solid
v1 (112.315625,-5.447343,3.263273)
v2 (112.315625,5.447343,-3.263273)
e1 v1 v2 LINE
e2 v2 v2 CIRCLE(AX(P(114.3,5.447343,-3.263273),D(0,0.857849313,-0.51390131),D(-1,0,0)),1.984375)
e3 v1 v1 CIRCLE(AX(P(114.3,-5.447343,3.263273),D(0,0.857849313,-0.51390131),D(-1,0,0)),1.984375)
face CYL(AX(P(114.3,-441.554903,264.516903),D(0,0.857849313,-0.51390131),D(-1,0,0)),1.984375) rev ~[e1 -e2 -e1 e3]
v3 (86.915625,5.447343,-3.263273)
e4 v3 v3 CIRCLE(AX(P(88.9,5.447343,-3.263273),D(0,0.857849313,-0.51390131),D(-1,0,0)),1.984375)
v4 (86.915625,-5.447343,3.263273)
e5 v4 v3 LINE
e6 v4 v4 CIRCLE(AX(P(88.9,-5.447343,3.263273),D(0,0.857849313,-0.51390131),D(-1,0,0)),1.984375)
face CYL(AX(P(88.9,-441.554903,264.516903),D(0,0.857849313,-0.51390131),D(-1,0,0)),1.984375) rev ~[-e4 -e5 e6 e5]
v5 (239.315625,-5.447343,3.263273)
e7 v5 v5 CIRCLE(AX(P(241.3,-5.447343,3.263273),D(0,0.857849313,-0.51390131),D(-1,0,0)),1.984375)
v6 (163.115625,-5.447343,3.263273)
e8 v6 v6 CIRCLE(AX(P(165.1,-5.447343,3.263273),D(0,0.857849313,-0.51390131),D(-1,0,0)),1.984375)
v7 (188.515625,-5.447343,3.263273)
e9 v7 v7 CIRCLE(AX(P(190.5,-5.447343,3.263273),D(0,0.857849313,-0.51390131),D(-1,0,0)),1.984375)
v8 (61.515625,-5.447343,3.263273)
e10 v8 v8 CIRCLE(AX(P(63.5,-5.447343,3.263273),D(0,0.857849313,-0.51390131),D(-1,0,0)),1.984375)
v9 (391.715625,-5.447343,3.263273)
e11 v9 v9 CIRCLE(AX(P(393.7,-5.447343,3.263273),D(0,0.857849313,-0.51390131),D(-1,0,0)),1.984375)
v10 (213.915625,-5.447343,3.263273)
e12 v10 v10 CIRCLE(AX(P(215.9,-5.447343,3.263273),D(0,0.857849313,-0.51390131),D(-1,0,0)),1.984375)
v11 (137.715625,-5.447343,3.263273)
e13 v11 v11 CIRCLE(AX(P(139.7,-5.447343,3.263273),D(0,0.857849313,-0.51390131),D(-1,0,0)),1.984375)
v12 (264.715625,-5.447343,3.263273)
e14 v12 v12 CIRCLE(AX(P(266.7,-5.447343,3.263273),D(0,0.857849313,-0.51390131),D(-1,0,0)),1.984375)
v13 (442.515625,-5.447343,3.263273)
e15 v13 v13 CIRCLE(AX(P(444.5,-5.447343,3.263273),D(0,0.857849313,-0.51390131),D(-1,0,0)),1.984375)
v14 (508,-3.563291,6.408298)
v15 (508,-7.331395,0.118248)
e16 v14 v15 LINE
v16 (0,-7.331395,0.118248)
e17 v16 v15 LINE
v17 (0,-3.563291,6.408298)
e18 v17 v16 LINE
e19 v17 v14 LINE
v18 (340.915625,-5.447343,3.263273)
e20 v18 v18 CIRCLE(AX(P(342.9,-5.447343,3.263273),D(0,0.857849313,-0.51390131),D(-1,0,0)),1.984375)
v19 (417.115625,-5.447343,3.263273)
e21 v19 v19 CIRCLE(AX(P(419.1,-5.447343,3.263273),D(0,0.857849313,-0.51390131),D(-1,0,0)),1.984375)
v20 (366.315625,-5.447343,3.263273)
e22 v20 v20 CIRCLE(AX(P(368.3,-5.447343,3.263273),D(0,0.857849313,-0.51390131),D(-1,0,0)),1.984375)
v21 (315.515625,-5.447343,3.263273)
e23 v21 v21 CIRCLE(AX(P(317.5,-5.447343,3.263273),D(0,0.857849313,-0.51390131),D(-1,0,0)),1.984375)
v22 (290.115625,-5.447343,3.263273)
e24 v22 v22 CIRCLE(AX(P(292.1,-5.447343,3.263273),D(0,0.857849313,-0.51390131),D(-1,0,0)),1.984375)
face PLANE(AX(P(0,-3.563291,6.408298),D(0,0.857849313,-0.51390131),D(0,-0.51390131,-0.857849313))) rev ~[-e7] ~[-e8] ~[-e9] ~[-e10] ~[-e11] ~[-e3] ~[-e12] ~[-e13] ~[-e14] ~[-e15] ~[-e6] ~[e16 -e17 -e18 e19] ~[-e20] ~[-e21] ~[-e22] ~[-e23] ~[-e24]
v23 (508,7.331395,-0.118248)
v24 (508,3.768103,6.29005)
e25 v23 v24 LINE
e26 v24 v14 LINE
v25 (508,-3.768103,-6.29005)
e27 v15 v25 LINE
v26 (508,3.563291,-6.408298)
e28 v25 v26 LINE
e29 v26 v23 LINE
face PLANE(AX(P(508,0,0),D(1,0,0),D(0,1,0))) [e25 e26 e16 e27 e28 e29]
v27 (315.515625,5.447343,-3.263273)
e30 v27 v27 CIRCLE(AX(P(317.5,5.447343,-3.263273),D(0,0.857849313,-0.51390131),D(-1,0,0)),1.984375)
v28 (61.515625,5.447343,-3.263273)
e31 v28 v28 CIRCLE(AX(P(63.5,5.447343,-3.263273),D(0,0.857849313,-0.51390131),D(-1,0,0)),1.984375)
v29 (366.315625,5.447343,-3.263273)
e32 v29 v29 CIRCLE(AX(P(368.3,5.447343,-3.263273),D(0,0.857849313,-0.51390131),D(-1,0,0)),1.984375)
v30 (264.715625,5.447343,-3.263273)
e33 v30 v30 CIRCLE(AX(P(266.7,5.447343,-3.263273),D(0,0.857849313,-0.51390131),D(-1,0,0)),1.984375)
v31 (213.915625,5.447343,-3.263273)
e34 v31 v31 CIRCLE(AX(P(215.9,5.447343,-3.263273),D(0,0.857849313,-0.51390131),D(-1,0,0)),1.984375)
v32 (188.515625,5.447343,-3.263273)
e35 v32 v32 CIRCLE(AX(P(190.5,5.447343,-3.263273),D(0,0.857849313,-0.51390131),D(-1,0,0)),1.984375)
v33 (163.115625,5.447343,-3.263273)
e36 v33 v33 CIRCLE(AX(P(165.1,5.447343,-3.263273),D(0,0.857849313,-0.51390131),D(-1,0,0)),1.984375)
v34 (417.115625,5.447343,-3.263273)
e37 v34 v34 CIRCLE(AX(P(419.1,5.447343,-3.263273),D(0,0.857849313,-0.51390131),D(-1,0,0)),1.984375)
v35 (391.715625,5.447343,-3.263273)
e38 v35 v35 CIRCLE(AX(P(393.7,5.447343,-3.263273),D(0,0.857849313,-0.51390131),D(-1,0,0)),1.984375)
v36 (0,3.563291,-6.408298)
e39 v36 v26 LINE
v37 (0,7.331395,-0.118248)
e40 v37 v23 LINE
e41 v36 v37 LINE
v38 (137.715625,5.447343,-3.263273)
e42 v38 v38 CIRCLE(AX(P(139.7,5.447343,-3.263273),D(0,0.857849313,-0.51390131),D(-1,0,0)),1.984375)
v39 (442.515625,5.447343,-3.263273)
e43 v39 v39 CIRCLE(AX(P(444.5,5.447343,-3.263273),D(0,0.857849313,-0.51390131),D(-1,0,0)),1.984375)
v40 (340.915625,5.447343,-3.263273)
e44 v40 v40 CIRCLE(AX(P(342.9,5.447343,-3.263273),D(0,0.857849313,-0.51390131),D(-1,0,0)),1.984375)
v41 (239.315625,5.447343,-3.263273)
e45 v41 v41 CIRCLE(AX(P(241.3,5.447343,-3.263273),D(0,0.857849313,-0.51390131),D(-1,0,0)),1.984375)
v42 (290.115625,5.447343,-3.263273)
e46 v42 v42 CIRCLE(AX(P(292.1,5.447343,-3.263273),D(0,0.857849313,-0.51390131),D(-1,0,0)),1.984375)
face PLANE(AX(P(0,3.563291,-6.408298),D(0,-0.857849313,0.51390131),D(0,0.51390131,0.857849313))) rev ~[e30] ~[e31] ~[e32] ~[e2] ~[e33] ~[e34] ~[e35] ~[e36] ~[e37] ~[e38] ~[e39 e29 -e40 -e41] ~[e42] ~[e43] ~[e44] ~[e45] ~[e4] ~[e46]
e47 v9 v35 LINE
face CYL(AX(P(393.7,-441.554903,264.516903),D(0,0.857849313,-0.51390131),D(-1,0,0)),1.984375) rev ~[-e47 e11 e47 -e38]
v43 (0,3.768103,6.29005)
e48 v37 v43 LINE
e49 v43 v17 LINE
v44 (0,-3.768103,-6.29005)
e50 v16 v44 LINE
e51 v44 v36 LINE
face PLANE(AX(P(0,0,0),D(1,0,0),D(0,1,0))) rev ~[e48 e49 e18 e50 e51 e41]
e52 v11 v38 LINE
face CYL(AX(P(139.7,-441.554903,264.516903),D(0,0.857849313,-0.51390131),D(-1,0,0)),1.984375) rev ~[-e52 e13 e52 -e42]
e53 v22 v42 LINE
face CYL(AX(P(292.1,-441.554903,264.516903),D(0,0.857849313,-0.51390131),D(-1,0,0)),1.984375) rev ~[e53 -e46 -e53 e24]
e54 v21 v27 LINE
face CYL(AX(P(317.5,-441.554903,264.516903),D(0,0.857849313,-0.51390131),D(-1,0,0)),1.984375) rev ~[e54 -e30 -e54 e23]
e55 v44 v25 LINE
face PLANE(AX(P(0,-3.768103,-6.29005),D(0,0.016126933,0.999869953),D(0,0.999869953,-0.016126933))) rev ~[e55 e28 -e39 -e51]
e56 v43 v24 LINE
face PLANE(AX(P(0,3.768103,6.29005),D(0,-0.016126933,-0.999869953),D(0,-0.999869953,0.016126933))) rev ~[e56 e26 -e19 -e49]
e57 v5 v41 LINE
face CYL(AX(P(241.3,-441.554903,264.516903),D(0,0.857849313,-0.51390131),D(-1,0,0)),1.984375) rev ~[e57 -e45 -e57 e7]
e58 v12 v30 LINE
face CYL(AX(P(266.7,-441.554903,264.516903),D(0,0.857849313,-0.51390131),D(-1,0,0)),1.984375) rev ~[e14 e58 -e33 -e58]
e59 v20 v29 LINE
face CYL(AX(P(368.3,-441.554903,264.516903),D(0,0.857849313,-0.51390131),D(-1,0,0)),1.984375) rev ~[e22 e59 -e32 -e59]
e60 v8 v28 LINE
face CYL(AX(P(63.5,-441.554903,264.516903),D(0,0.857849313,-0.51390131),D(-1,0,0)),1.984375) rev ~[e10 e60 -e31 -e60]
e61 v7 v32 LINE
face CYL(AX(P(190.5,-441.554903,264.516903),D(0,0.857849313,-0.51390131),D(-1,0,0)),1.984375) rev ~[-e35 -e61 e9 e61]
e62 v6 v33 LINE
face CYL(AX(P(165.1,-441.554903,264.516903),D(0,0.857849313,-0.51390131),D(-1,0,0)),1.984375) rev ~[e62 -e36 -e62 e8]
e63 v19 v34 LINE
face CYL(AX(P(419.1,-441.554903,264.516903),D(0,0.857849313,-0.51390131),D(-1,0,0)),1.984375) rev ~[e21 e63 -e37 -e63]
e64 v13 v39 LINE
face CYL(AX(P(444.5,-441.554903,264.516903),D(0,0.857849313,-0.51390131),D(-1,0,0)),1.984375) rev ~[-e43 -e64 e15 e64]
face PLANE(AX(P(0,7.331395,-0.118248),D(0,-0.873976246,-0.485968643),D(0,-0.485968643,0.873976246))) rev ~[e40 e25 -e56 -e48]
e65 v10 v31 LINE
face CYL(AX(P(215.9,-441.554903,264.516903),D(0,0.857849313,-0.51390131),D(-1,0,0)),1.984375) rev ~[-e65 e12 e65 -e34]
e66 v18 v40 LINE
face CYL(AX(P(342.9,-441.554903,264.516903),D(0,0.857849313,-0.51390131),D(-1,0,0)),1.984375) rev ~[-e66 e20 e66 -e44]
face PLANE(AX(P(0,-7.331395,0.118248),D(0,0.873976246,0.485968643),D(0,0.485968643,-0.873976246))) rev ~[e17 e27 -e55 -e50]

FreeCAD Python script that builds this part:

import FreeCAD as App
import Part
import Sketcher

V = App.Vector
Q = App.Units.Quantity

doc = App.newDocument("Part")
params = doc.addObject("Spreadsheet::Sheet", "Params")
for row, (alias, value) in enumerate([
    ("pad1_length", "20 in"),
    ("sketch2_diameter", "0.15625 in"),
    ("hole_diameter", "0.15625 in"),
], start=1):
    params.set(f"A{row}", alias)
    params.set(f"B{row}", "=" + value)
    params.setAlias(f"B{row}", alias)

body = doc.addObject("PartDesign::Body", "Body")

# Sketch on YZ plane
sketch1 = doc.addObject("Sketcher::SketchObject", "Sketch")
body.addObject(sketch1)
sketch1.AttachmentSupport = (doc.YZ_Plane, [""])
sketch1.MapMode = "FlatFace"
sketch1.addGeometry(Part.LineSegment(V(3.563291, -6.408298, 0), V(7.331395, -0.118248, 0)), False)
sketch1.addGeometry(Part.LineSegment(V(7.331395, -0.118248, 0), V(3.768103, 6.29005, 0)), False)
sketch1.addGeometry(Part.LineSegment(V(3.768103, 6.29005, 0), V(-3.563291, 6.408298, 0)), False)
sketch1.addGeometry(Part.LineSegment(V(-3.563291, 6.408298, 0), V(-7.331395, 0.118248, 0)), False)
sketch1.addGeometry(Part.LineSegment(V(-7.331395, 0.118248, 0), V(-3.768103, -6.29005, 0)), False)
sketch1.addGeometry(Part.LineSegment(V(-3.768103, -6.29005, 0), V(3.563291, -6.408298, 0)), False)
sketch1.addConstraint(Sketcher.Constraint("Coincident", 0, 2, 1, 1))
sketch1.addConstraint(Sketcher.Constraint("Coincident", 1, 2, 2, 1))
sketch1.addConstraint(Sketcher.Constraint("Coincident", 2, 2, 3, 1))
sketch1.addConstraint(Sketcher.Constraint("Coincident", 3, 2, 4, 1))
sketch1.addConstraint(Sketcher.Constraint("Coincident", 4, 2, 5, 1))
sketch1.addConstraint(Sketcher.Constraint("Coincident", 5, 2, 0, 1))
sketch1.addConstraint(Sketcher.Constraint("Symmetric", 0, 2, 3, 2, -1, 1))
sketch1.addConstraint(Sketcher.Constraint("Symmetric", 1, 2, 4, 2, -1, 1))
sketch1.addConstraint(Sketcher.Constraint("Symmetric", 2, 2, 5, 2, -1, 1))
sketch1.addConstraint(Sketcher.Constraint("Equal", 0, 1))
sketch1.addConstraint(Sketcher.Constraint("Equal", 1, 2))
sketch1.addConstraint(Sketcher.Constraint("DistanceY", -1, 1, 2, 2, 6.408298))
sketch1.addConstraint(Sketcher.Constraint("DistanceY", 0, 2, 1, 2, 6.408298))
sketch1.addConstraint(Sketcher.Constraint("DistanceX", 3, 2, 1, 2, 11.099498))
sketch1.addConstraint(Sketcher.Constraint("DistanceY", 3, 2, 1, 2, 6.171802))
pad1 = doc.addObject("PartDesign::Pad", "Pad")
body.addObject(pad1)
pad1.Profile = sketch1
pad1.setExpression("Length", "Params.pad1_length")

# Sketch on an angled plane
sketch2 = doc.addObject("Sketcher::SketchObject", "Sketch001")
body.addObject(sketch2)
sketch2.Placement = App.Placement(V(0, -5.447343, 3.263273), App.Rotation(V(1, 0, 0), V(0, 0.51390131, 0.857849313), V(0, -0.857849313, 0.51390131), "ZXY"))
sketch2.addGeometry(Part.Circle(V(63.5, 0, 0), V(0, 0, 1), 1.984375), False)
sketch2.addGeometry(Part.Circle(V(88.9, 0, 0), V(0, 0, 1), 1.984375), False)
sketch2.addGeometry(Part.Circle(V(114.3, 0, 0), V(0, 0, 1), 1.984375), False)
sketch2.addGeometry(Part.Circle(V(139.7, 0, 0), V(0, 0, 1), 1.984375), False)
sketch2.addGeometry(Part.Circle(V(165.1, 0, 0), V(0, 0, 1), 1.984375), False)
sketch2.addGeometry(Part.Circle(V(190.5, 0, 0), V(0, 0, 1), 1.984375), False)
sketch2.addGeometry(Part.Circle(V(215.9, 0, 0), V(0, 0, 1), 1.984375), False)
sketch2.addGeometry(Part.Circle(V(241.3, 0, 0), V(0, 0, 1), 1.984375), False)
sketch2.addGeometry(Part.Circle(V(266.7, 0, 0), V(0, 0, 1), 1.984375), False)
sketch2.addGeometry(Part.Circle(V(292.1, 0, 0), V(0, 0, 1), 1.984375), False)
sketch2.addGeometry(Part.Circle(V(317.5, 0, 0), V(0, 0, 1), 1.984375), False)
sketch2.addGeometry(Part.Circle(V(342.9, 0, 0), V(0, 0, 1), 1.984375), False)
sketch2.addGeometry(Part.Circle(V(368.3, 0, 0), V(0, 0, 1), 1.984375), False)
sketch2.addGeometry(Part.Circle(V(393.7, 0, 0), V(0, 0, 1), 1.984375), False)
sketch2.addGeometry(Part.Circle(V(419.1, 0, 0), V(0, 0, 1), 1.984375), False)
sketch2.addGeometry(Part.Circle(V(444.5, 0, 0), V(0, 0, 1), 1.984375), False)
sketch2.addConstraint(Sketcher.Constraint("Equal", 0, 1))
sketch2.addConstraint(Sketcher.Constraint("Equal", 1, 2))
sketch2.addConstraint(Sketcher.Constraint("Equal", 2, 3))
sketch2.addConstraint(Sketcher.Constraint("Equal", 3, 4))
sketch2.addConstraint(Sketcher.Constraint("Equal", 4, 5))
sketch2.addConstraint(Sketcher.Constraint("Equal", 5, 6))
sketch2.addConstraint(Sketcher.Constraint("Equal", 6, 7))
sketch2.addConstraint(Sketcher.Constraint("Equal", 7, 8))
sketch2.addConstraint(Sketcher.Constraint("Equal", 8, 9))
sketch2.addConstraint(Sketcher.Constraint("Equal", 9, 10))
sketch2.addConstraint(Sketcher.Constraint("Equal", 10, 11))
sketch2.addConstraint(Sketcher.Constraint("Equal", 11, 12))
sketch2.addConstraint(Sketcher.Constraint("Equal", 12, 13))
sketch2.addConstraint(Sketcher.Constraint("Equal", 13, 14))
sketch2.addConstraint(Sketcher.Constraint("Equal", 14, 15))
sketch2.addConstraint(Sketcher.Constraint("PointOnObject", 0, 3, -1))
sketch2.addConstraint(Sketcher.Constraint("PointOnObject", 1, 3, -1))
sketch2.addConstraint(Sketcher.Constraint("PointOnObject", 2, 3, -1))
sketch2.addConstraint(Sketcher.Constraint("PointOnObject", 3, 3, -1))
sketch2.addConstraint(Sketcher.Constraint("PointOnObject", 4, 3, -1))
sketch2.addConstraint(Sketcher.Constraint("PointOnObject", 5, 3, -1))
sketch2.addConstraint(Sketcher.Constraint("PointOnObject", 6, 3, -1))
sketch2.addConstraint(Sketcher.Constraint("PointOnObject", 7, 3, -1))
sketch2.addConstraint(Sketcher.Constraint("PointOnObject", 8, 3, -1))
sketch2.addConstraint(Sketcher.Constraint("PointOnObject", 9, 3, -1))
sketch2.addConstraint(Sketcher.Constraint("PointOnObject", 10, 3, -1))
sketch2.addConstraint(Sketcher.Constraint("PointOnObject", 11, 3, -1))
sketch2.addConstraint(Sketcher.Constraint("PointOnObject", 12, 3, -1))
sketch2.addConstraint(Sketcher.Constraint("PointOnObject", 13, 3, -1))
sketch2.addConstraint(Sketcher.Constraint("PointOnObject", 14, 3, -1))
sketch2.addConstraint(Sketcher.Constraint("PointOnObject", 15, 3, -1))
sketch2.addConstraint(Sketcher.Constraint("Diameter", 0, Q("0.15625 in")))
sketch2.addConstraint(Sketcher.Constraint("DistanceX", 0, 3, 1, 3, Q("1 in")))
sketch2.addConstraint(Sketcher.Constraint("DistanceX", 1, 3, 2, 3, Q("1 in")))
sketch2.addConstraint(Sketcher.Constraint("DistanceX", 2, 3, 3, 3, Q("1 in")))
sketch2.addConstraint(Sketcher.Constraint("DistanceX", 3, 3, 4, 3, Q("1 in")))
sketch2.addConstraint(Sketcher.Constraint("DistanceX", 4, 3, 5, 3, Q("1 in")))
sketch2.addConstraint(Sketcher.Constraint("DistanceX", 5, 3, 6, 3, Q("1 in")))
sketch2.addConstraint(Sketcher.Constraint("DistanceX", 6, 3, 7, 3, Q("1 in")))
sketch2.addConstraint(Sketcher.Constraint("DistanceX", 7, 3, 8, 3, Q("1 in")))
sketch2.addConstraint(Sketcher.Constraint("DistanceX", 8, 3, 9, 3, Q("1 in")))
sketch2.addConstraint(Sketcher.Constraint("DistanceX", 9, 3, 10, 3, Q("1 in")))
sketch2.addConstraint(Sketcher.Constraint("DistanceX", 10, 3, 11, 3, Q("1 in")))
sketch2.addConstraint(Sketcher.Constraint("DistanceX", 11, 3, 12, 3, Q("1 in")))
sketch2.addConstraint(Sketcher.Constraint("DistanceX", 12, 3, 13, 3, Q("1 in")))
sketch2.addConstraint(Sketcher.Constraint("DistanceX", 13, 3, 14, 3, Q("1 in")))
sketch2.addConstraint(Sketcher.Constraint("DistanceX", 14, 3, 15, 3, Q("1 in")))
sketch2.addConstraint(Sketcher.Constraint("DistanceX", -1, 1, 0, 3, Q("2.5 in")))
sketch2.setExpression("Constraints[31]", "Params.sketch2_diameter")
doc.recompute()
hole = doc.addObject("PartDesign::Hole", "Hole")
body.addObject(hole)
hole.Profile = sketch2
hole.ThreadType = "None"
hole.setExpression("Diameter", "Params.hole_diameter")
hole.DepthType = "ThroughAll"

doc.recompute()
